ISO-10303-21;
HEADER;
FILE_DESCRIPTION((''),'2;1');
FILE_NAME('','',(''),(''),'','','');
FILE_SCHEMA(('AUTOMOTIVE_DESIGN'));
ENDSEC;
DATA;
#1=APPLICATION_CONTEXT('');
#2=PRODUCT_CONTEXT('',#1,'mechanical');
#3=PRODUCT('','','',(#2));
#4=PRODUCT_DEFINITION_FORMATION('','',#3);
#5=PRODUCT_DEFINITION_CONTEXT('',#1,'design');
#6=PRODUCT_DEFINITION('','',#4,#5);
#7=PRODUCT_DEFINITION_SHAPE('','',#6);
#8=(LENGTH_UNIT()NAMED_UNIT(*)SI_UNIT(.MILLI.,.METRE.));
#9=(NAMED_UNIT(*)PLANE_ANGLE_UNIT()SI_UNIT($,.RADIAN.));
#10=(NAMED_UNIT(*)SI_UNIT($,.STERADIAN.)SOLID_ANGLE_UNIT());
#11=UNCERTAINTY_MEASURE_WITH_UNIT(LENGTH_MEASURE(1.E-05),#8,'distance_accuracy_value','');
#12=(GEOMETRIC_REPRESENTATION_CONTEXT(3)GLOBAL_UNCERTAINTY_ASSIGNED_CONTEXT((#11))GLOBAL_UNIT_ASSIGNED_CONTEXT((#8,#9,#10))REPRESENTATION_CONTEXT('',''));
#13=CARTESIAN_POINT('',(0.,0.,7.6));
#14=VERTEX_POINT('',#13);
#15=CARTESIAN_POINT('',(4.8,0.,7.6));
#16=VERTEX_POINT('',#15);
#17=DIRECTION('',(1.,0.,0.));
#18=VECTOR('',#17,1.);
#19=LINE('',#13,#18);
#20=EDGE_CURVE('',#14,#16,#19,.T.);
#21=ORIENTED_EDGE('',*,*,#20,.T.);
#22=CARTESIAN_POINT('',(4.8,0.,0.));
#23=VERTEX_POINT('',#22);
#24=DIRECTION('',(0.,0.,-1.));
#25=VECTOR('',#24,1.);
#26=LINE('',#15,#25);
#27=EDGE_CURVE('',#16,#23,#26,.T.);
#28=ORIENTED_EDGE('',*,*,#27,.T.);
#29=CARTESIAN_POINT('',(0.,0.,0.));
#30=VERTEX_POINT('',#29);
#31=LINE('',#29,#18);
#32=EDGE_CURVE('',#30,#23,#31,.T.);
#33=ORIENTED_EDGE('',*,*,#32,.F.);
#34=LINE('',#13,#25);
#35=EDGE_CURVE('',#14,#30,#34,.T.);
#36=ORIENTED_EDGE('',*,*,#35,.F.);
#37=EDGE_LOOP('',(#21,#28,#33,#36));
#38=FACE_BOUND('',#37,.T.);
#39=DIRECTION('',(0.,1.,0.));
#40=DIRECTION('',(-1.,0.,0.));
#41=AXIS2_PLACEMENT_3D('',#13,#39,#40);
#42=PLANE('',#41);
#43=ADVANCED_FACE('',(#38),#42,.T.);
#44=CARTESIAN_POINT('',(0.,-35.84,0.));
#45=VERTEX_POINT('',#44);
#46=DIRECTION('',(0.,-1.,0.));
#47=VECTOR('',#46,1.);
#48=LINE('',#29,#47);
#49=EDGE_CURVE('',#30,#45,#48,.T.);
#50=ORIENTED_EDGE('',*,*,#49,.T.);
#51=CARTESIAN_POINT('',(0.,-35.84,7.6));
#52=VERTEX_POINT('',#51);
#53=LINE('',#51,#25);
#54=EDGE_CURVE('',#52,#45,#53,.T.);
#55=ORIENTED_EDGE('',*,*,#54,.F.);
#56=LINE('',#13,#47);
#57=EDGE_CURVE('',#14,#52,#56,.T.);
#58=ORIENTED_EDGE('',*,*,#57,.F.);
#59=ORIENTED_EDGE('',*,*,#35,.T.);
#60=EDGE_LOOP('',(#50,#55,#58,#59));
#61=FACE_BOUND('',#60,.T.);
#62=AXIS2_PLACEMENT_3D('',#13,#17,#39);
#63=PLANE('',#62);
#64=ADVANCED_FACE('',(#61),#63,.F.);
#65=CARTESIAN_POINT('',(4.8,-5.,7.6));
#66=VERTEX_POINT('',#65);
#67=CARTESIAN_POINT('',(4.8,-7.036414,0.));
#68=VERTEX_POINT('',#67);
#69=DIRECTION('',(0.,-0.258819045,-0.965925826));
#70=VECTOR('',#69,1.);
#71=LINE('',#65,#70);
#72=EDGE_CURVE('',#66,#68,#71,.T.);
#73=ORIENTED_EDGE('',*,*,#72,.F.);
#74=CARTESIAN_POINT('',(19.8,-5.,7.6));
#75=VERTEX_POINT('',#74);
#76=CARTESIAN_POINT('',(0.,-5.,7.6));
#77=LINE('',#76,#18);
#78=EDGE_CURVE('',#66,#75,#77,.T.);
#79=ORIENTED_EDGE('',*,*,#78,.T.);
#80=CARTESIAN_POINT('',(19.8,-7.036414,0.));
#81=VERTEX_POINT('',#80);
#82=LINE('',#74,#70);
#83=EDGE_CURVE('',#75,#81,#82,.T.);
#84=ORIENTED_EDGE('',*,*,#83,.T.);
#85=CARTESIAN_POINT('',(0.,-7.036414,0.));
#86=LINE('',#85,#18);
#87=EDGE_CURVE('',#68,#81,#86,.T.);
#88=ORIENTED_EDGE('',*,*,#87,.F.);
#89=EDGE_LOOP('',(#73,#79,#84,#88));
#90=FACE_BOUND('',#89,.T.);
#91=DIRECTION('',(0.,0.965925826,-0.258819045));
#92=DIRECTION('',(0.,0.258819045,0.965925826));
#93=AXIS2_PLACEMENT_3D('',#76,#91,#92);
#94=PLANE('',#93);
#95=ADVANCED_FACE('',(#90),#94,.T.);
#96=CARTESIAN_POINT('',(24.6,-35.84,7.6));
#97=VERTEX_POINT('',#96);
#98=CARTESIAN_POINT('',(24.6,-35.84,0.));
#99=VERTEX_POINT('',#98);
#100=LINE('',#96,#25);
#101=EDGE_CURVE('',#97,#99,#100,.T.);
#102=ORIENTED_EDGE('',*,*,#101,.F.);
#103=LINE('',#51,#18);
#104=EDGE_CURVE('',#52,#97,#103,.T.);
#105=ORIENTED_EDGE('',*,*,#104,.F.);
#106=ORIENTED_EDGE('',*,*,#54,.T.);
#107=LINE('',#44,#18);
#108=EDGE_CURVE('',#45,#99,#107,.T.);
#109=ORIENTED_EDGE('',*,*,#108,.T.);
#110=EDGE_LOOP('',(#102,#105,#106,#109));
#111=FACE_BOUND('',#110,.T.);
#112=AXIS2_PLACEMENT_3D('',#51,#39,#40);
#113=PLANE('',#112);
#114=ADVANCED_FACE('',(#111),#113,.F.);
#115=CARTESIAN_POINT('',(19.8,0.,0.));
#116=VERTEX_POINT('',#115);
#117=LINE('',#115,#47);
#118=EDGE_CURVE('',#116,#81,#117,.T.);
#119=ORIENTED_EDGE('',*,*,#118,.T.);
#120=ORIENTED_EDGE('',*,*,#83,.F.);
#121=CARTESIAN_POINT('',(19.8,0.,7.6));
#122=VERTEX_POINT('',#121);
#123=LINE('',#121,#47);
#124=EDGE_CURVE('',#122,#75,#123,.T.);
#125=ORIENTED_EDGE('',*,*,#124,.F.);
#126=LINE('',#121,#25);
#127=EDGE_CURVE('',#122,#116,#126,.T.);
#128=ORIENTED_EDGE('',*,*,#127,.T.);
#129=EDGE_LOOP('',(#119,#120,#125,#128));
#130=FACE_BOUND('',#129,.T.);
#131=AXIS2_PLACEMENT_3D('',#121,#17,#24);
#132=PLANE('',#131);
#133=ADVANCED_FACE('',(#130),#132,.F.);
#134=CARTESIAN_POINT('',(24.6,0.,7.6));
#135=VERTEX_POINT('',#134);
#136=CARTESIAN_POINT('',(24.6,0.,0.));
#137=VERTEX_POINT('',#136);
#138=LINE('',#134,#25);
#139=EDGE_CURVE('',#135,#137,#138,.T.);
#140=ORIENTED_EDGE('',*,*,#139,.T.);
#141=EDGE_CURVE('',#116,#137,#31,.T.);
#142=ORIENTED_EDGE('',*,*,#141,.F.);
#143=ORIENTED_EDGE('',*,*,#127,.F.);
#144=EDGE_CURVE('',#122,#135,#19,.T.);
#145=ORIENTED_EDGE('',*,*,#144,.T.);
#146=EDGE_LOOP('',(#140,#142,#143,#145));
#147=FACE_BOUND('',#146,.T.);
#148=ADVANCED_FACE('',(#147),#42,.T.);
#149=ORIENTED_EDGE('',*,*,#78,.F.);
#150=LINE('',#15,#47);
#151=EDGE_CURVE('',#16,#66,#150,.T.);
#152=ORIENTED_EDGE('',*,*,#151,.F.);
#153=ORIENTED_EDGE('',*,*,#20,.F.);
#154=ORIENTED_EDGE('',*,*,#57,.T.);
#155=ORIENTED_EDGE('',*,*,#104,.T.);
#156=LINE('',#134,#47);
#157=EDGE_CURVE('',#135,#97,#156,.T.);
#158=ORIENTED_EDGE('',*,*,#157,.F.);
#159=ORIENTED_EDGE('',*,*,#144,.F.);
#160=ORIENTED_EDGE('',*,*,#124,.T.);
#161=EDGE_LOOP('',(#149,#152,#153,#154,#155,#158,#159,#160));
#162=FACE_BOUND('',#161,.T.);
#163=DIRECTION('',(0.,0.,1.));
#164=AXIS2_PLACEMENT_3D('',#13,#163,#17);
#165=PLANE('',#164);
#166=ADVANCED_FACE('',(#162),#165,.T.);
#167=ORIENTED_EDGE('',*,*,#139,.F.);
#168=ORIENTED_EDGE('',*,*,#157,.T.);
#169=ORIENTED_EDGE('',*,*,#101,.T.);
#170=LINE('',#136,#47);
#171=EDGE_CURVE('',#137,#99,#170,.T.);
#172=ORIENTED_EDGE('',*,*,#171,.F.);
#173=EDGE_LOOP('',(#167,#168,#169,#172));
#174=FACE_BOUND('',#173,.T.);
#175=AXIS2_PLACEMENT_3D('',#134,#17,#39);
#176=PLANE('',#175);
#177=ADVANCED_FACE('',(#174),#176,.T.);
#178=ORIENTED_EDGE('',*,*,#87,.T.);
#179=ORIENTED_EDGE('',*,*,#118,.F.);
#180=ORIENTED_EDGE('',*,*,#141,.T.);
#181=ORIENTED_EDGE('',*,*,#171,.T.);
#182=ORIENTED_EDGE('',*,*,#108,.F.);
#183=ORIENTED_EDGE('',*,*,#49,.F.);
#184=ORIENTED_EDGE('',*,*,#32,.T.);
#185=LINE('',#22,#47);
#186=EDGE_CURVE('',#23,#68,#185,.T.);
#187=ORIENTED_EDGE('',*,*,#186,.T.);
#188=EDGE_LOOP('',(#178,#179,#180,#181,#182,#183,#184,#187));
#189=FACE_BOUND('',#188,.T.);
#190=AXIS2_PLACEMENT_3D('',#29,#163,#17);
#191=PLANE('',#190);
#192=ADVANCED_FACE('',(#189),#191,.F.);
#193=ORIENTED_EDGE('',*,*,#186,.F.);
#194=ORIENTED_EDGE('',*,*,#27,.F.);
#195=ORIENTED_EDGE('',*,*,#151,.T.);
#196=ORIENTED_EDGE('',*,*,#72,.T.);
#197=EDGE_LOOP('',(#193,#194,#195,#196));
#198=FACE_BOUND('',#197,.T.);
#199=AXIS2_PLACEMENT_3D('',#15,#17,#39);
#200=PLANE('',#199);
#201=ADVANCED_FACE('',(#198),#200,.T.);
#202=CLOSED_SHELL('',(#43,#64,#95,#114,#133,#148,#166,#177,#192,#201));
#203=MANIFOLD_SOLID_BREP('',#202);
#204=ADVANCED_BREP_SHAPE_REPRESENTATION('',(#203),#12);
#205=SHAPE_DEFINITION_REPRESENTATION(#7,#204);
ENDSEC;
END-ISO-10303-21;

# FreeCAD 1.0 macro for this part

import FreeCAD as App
import Part
import Sketcher
from FreeCAD import Vector
Q = App.Units.Quantity


def faces_at(feature, points):
    """Names of the faces that lie closest to the given points."""
    faces = feature.Shape.Faces
    near = lambda p: min(range(len(faces)), key=lambda i: faces[i].distToShape(Part.Vertex(*p))[0])
    return sorted({f"Face{near(p) + 1}" for p in points})


def add_polygon(sketch, points):
    """Adds a closed chain of lines whose ends are joined by coincident constraints."""
    first, n = sketch.GeometryCount, len(points)
    for a, b in zip(points, points[1:] + points[:1]):
        sketch.addGeometry(Part.LineSegment(App.Vector(*a, 0), App.Vector(*b, 0)), False)
    for i in range(n):
        sketch.addConstraint(Sketcher.Constraint("Coincident", first + i, 2, first + (i + 1) % n, 1))

doc = App.newDocument("Part")
params = doc.addObject("Spreadsheet::Sheet", "Params")
for row, (alias, value) in enumerate([
    ("sketch1_width", "15 mm"),
    ("sketch1_height", "5 mm"),
    ("sketch1_width2", "4.8 mm"),
    ("sketch1_height2", "35.84 mm"),
    ("pad1_length", "7.6 mm"),
    ("draft_angle", "15 deg"),
], start=1):
    params.set(f"A{row}", alias)
    params.set(f"B{row}", "=" + value)
    params.setAlias(f"B{row}", alias)

body = doc.addObject("PartDesign::Body", "Body")

# Sketch on XY plane
sketch1 = body.newObject("Sketcher::SketchObject", "Sketch")
sketch1.AttachmentSupport = (doc.getObject("XY_Plane"), [""])
sketch1.MapMode = "FlatFace"
add_polygon(sketch1, [(4.8, 0), (0, 0), (0, -35.8), (24.6, -35.8), (24.6, 0), (19.8, 0), (19.8, -5), (4.8, -5)])  # lines 0-7
sketch1.addConstraint(Sketcher.Constraint("Horizontal", 0))
sketch1.addConstraint(Sketcher.Constraint("Vertical", 1))
sketch1.addConstraint(Sketcher.Constraint("Horizontal", 2))
sketch1.addConstraint(Sketcher.Constraint("Vertical", 3))
sketch1.addConstraint(Sketcher.Constraint("Horizontal", 4))
sketch1.addConstraint(Sketcher.Constraint("Vertical", 5))
sketch1.addConstraint(Sketcher.Constraint("Horizontal", 6))
sketch1.addConstraint(Sketcher.Constraint("Vertical", 7))
sketch1.addConstraint(Sketcher.Constraint("Coincident", 0, 2, -1, 1))
sketch1.addConstraint(Sketcher.Constraint("PointOnObject", 3, 2, -1))
sketch1.addConstraint(Sketcher.Constraint("Equal", 0, 4))
sketch1.addConstraint(Sketcher.Constraint("DistanceX", 6, 2, 6, 1, Q("15 mm")))
sketch1.addConstraint(Sketcher.Constraint("DistanceY", 5, 2, 5, 1, Q("5 mm")))
sketch1.addConstraint(Sketcher.Constraint("DistanceX", 0, 2, 0, 1, Q("4.8 mm")))
sketch1.addConstraint(Sketcher.Constraint("DistanceY", 1, 2, 1, 1, Q("35.84 mm")))
sketch1.setExpression("Constraints[19]", "Params.sketch1_width")
sketch1.setExpression("Constraints[20]", "Params.sketch1_height")
sketch1.setExpression("Constraints[21]", "Params.sketch1_width2")
sketch1.setExpression("Constraints[22]", "Params.sketch1_height2")
pad1 = body.newObject("PartDesign::Pad", "Pad")
pad1.Profile = sketch1
pad1.setExpression("Length", "Params.pad1_length")
doc.recompute()

datumplane = body.newObject("PartDesign::Plane", "DatumPlane")
datumplane.AttachmentSupport = (doc.getObject("XY_Plane"), [""])
datumplane.MapMode = "FlatFace"
datumplane.AttachmentOffset = App.Placement(Vector(0, 0, 7.6), App.Rotation())
draft = body.newObject("PartDesign::Draft", "Draft")
draft.Base = (pad1, faces_at(pad1, [(12.3, -5, 3.8)]))
draft.NeutralPlane = (datumplane, [""])
draft.setExpression("Angle", "Params.draft_angle")
draft.Reversed = True

doc.recompute()
